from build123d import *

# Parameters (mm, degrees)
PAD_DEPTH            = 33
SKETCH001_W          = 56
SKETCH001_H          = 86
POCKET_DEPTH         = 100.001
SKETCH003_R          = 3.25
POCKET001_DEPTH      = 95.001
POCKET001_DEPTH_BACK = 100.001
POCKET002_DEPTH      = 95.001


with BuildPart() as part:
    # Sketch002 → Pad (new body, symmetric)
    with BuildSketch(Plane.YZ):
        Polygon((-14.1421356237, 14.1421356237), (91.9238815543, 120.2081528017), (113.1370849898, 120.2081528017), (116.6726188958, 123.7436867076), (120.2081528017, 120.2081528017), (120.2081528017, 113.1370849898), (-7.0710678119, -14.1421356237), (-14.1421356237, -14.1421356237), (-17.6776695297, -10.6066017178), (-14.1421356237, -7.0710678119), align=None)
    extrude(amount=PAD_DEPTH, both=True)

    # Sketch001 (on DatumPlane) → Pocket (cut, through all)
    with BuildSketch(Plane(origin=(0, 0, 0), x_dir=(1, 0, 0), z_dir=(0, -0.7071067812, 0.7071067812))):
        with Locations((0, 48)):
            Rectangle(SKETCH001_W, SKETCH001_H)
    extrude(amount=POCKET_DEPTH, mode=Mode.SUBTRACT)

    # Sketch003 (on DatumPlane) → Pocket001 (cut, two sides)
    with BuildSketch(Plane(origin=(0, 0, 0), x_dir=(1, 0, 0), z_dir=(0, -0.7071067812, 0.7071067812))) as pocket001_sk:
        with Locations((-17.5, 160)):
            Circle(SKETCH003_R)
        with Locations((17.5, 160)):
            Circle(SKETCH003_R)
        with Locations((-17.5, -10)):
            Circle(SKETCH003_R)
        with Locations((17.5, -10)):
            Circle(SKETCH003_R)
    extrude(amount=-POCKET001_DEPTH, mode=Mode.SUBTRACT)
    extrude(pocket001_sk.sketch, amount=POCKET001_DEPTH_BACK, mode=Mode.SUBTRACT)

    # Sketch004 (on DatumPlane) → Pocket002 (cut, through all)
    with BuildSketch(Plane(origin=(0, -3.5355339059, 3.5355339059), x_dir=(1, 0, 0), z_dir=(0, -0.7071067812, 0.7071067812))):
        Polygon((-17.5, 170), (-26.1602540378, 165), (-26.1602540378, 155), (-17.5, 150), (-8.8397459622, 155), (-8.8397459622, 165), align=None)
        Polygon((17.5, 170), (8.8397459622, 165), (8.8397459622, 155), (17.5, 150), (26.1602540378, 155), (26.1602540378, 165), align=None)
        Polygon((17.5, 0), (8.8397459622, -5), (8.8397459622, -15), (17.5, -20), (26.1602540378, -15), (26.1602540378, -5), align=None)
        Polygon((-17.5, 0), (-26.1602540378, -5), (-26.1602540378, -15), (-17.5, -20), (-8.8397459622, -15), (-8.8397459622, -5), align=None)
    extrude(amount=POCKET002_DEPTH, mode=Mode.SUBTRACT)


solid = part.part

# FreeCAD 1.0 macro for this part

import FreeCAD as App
import Part
import Sketcher
Q = App.Units.Quantity


def add_polygon(sketch, points):
    """Adds a closed chain of lines whose ends are joined by coincident constraints."""
    first, n = sketch.GeometryCount, len(points)
    for a, b in zip(points, points[1:] + points[:1]):
        sketch.addGeometry(Part.LineSegment(App.Vector(*a, 0), App.Vector(*b, 0)), False)
    for i in range(n):
        sketch.addConstraint(Sketcher.Constraint("Coincident", first + i, 2, first + (i + 1) % n, 1))

doc = App.newDocument("Part")
params = doc.addObject("Spreadsheet::Sheet", "Params")
for row, (alias, value) in enumerate([
    ("sketch1_length", "150 mm"),
    ("sketch1_length2", "5 mm"),
    ("sketch1_length3", "180 mm"),
    ("pad1_length", "66 mm"),
    ("sketch2_width", "56 mm"),
    ("sketch2_height", "86 mm"),
    ("sketch3_diameter", "6.5 mm"),
    ("sketch4_height", "10 mm"),
    ("sketch4_length", "10 mm"),
], start=1):
    params.set(f"A{row}", alias)
    params.set(f"B{row}", "=" + value)
    params.setAlias(f"B{row}", alias)

body = doc.addObject("PartDesign::Body", "Body")

sketch1 = body.newObject("Sketcher::SketchObject", "Sketch")
sketch1.AttachmentSupport = (doc.getObject("YZ_Plane"), [""])
sketch1.MapMode = "FlatFace"
add_polygon(sketch1, [(92, 120), (-14, 14), (-14, -7), (-18, -11), (-14, -14), (-7, -14), (120, 113), (120, 120), (117, 124), (113, 120)])
sketch1.addConstraint([
    Sketcher.Constraint("Vertical", 1),
    Sketcher.Constraint("Horizontal", 4),
    Sketcher.Constraint("Vertical", 6),
    Sketcher.Constraint("Horizontal", 9),
    Sketcher.Constraint("Symmetric", 0, 2, 3, 2, -1),
    Sketcher.Constraint("Parallel", 0, 2),
    Sketcher.Constraint("Perpendicular", 2, 3),
    Sketcher.Constraint("Perpendicular", 3, 5),
    Sketcher.Constraint("Perpendicular", 5, 7),
    Sketcher.Constraint("Perpendicular", 7, 8),
    Sketcher.Constraint("Horizontal", 6, 2, 8, 2),
    Sketcher.Constraint("Equal", 9, 1),
    Sketcher.Constraint("Equal", 4, 6),
    Sketcher.Constraint("Equal", 2, 3),
    Sketcher.Constraint("Distance", 0, 150.0),
    Sketcher.Constraint("Distance", 2, 5.0),
    Sketcher.Constraint("Distance", 5, 180.0),
    Sketcher.Constraint("DistanceY", 2, 2, -1, 1, 10.606602),
    Sketcher.Constraint("DistanceX", 2, 2, -1, 1, 17.67767),
])
sketch1.setExpression("Constraints[24]", "Params.sketch1_length")
sketch1.setExpression("Constraints[25]", "Params.sketch1_length2")
sketch1.setExpression("Constraints[26]", "Params.sketch1_length3")
pad1 = body.newObject("PartDesign::Pad", "Pad")
pad1.Profile = sketch1
pad1.setExpression("Length", "Params.pad1_length")
pad1.Midplane = True

sketch2 = body.newObject("Sketcher::SketchObject", "Sketch001")
sketch2.Placement = App.Placement(App.Vector(0, 0, 0), App.Rotation(App.Vector(1, 0, 0), App.Vector(0, 0.707106781, 0.707106781), App.Vector(0, -0.707106781, 0.707106781), "ZXY"))
add_polygon(sketch2, [(-28, 91), (-28, 5), (28, 5), (28, 91)])
sketch2.addConstraint([
    Sketcher.Constraint("Vertical", 0),
    Sketcher.Constraint("Horizontal", 1),
    Sketcher.Constraint("Vertical", 2),
    Sketcher.Constraint("Horizontal", 3),
    Sketcher.Constraint("DistanceX", 1, 1, 1, 2, 56.0),
    Sketcher.Constraint("DistanceY", 0, 2, 0, 1, 86.0),
    Sketcher.Constraint("DistanceX", 0, 2, -1, 1, 28.0),
    Sketcher.Constraint("DistanceY", -1, 1, 0, 2, 5.0),
])
sketch2.setExpression("Constraints[8]", "Params.sketch2_width")
sketch2.setExpression("Constraints[9]", "Params.sketch2_height")
pocket1 = body.newObject("PartDesign::Pocket", "Pocket")
pocket1.Profile = sketch2
pocket1.Type = "ThroughAll"
pocket1.Reversed = True

sketch3 = body.newObject("Sketcher::SketchObject", "Sketch002")
sketch3.Placement = App.Placement(App.Vector(0, 0, 0), App.Rotation(App.Vector(1, 0, 0), App.Vector(0, 0.707106781, 0.707106781), App.Vector(0, -0.707106781, 0.707106781), "ZXY"))
sketch3.addGeometry([
    Part.Circle(App.Vector(-17.5, 160, 0), App.Vector(0, 0, 1), 3.2),
    Part.Circle(App.Vector(17.5, 160, 0), App.Vector(0, 0, 1), 3.2),
    Part.Circle(App.Vector(-17.5, -10, 0), App.Vector(0, 0, 1), 3.2),
    Part.Circle(App.Vector(17.5, -10, 0), App.Vector(0, 0, 1), 3.2),
], False)
sketch3.addConstraint([
    Sketcher.Constraint("Equal", 0, 1),
    Sketcher.Constraint("Equal", 1, 2),
    Sketcher.Constraint("Equal", 2, 3),
    Sketcher.Constraint("Symmetric", 0, 3, 1, 3, -2),
    Sketcher.Constraint("Symmetric", 2, 3, 3, 3, -2),
    Sketcher.Constraint("Vertical", 0, 3, 2, 3),
    Sketcher.Constraint("Diameter", 0, 6.5),
    Sketcher.Constraint("DistanceY", -1, 1, 0, 3, 160.0),
    Sketcher.Constraint("DistanceY", 2, 3, -1, 1, 10.0),
    Sketcher.Constraint("DistanceX", 0, 3, 1, 3, 35.0),
])
sketch3.setExpression("Constraints[6]", "Params.sketch3_diameter")
pocket2 = body.newObject("PartDesign::Pocket", "Pocket001")
pocket2.Profile = sketch3
pocket2.Type = "ThroughAll"
pocket2.Midplane = True

sketch4 = body.newObject("Sketcher::SketchObject", "Sketch003")
sketch4.Placement = App.Placement(App.Vector(0, -3.535534, 3.535534), App.Rotation(App.Vector(1, 0, 0), App.Vector(0, 0.707106781, 0.707106781), App.Vector(0, -0.707106781, 0.707106781), "ZXY"))
add_polygon(sketch4, [(-18, 170), (-26, 165), (-26, 155), (-18, 150), (-9, 155), (-9, 165)])
add_polygon(sketch4, [(18, 170), (9, 165), (9, 155), (18, 150), (26, 155), (26, 165)])
add_polygon(sketch4, [(18, 0), (9, -5), (9, -15), (18, -20), (26, -15), (26, -5)])
add_polygon(sketch4, [(-18, 0), (-26, -5), (-26, -15), (-18, -20), (-9, -15), (-9, -5)])
sketch4.addConstraint([
    Sketcher.Constraint("Vertical", 1),
    Sketcher.Constraint("Vertical", 4),
    Sketcher.Constraint("Vertical", 7),
    Sketcher.Constraint("Vertical", 10),
    Sketcher.Constraint("Vertical", 13),
    Sketcher.Constraint("Vertical", 16),
    Sketcher.Constraint("Vertical", 19),
    Sketcher.Constraint("Vertical", 22),
    Sketcher.Constraint("Symmetric", 17, 2, 23, 2, -1, 1),
    Sketcher.Constraint("Symmetric", 4, 2, 6, 2, -2),
    Sketcher.Constraint("Symmetric", 2, 2, 8, 2, -2),
    Sketcher.Constraint("Symmetric", 1, 2, 9, 2, -2),
    Sketcher.Constraint("Symmetric", 5, 2, 11, 2, -2),
    Sketcher.Constraint("Symmetric", 16, 2, 18, 2, -2),
    Sketcher.Constraint("Symmetric", 14, 2, 20, 2, -2),
    Sketcher.Constraint("Symmetric", 13, 2, 21, 2, -2),
    Sketcher.Constraint("PointOnObject", 17, 2, -1),
    Sketcher.Constraint("Parallel", 0, 3),
    Sketcher.Constraint("Parallel", 2, 5),
    Sketcher.Constraint("Parallel", 3, 6),
    Sketcher.Constraint("Parallel", 5, 8),
    Sketcher.Constraint("Parallel", 8, 11),
    Sketcher.Constraint("Parallel", 9, 12),
    Sketcher.Constraint("Parallel", 11, 14),
    Sketcher.Constraint("Parallel", 12, 15),
    Sketcher.Constraint("Parallel", 14, 17),
    Sketcher.Constraint("Parallel", 17, 20),
    Sketcher.Constraint("Parallel", 20, 23),
    Sketcher.Constraint("Horizontal", 1, 2, 3, 2),
    Sketcher.Constraint("Horizontal", 0, 2, 4, 2),
    Sketcher.Constraint("Horizontal", 13, 2, 15, 2),
    Sketcher.Constraint("Horizontal", 12, 2, 16, 2),
    Sketcher.Constraint("Vertical", 7, 2, 12, 2),
    Sketcher.Constraint("Vertical", 11, 2, 14, 2),
    Sketcher.Constraint("Equal", 10, 13),
    Sketcher.Constraint("DistanceY", 1, 2, 1, 1, 10.0),
    Sketcher.Constraint("Angle", 0, Q("-150 deg")),
    Sketcher.Constraint("Distance", 0, 10.0),
    Sketcher.Constraint("DistanceY", -1, 1, 0, 2, 165.0),
    Sketcher.Constraint("DistanceX", 0, 2, 6, 2, 35.0),
])
sketch4.setExpression("Constraints[59]", "Params.sketch4_height")
sketch4.setExpression("Constraints[61]", "Params.sketch4_length")
pocket3 = body.newObject("PartDesign::Pocket", "Pocket002")
pocket3.Profile = sketch4
pocket3.Type = "ThroughAll"
pocket3.Reversed = True

doc.recompute()
